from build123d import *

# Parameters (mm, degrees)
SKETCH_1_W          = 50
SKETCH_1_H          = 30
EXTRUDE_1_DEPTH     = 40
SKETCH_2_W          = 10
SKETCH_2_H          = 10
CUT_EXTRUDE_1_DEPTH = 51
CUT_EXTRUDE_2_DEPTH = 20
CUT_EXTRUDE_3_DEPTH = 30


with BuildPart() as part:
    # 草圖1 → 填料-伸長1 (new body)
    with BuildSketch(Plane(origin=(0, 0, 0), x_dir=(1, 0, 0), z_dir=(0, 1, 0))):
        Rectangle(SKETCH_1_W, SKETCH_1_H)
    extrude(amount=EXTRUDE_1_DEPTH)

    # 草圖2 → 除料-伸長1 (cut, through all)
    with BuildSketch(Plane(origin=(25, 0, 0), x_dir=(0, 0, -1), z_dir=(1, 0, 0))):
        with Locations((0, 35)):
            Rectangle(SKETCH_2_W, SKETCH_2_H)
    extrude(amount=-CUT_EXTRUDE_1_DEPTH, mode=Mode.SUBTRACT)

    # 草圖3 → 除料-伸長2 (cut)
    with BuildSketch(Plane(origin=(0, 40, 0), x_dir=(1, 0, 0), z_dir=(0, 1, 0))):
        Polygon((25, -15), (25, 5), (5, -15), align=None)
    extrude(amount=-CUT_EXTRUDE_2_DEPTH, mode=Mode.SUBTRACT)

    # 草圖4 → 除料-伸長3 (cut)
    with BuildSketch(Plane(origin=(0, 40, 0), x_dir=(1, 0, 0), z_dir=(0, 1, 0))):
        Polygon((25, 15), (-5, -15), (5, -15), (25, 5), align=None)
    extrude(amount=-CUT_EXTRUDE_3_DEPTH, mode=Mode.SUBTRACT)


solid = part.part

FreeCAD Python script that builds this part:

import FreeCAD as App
import Part
import Sketcher

V = App.Vector
Q = App.Units.Quantity

doc = App.newDocument("Part")
body = doc.addObject("PartDesign::Body", "Body")

# Sketch on XZ plane
sketch1 = body.newObject("Sketcher::SketchObject", "Sketch")
sketch1.AttachmentSupport = (doc.getObject("XZ_Plane"), [""])
sketch1.MapMode = "FlatFace"
sketch1.addGeometry(Part.LineSegment(V(-25, -15, 0), V(-25, 15, 0)), False)
sketch1.addGeometry(Part.LineSegment(V(-25, 15, 0), V(25, 15, 0)), False)
sketch1.addGeometry(Part.LineSegment(V(25, 15, 0), V(25, -15, 0)), False)
sketch1.addGeometry(Part.LineSegment(V(25, -15, 0), V(-25, -15, 0)), False)
sketch1.addConstraint(Sketcher.Constraint("Coincident", 0, 2, 1, 1))
sketch1.addConstraint(Sketcher.Constraint("Coincident", 1, 2, 2, 1))
sketch1.addConstraint(Sketcher.Constraint("Coincident", 2, 2, 3, 1))
sketch1.addConstraint(Sketcher.Constraint("Coincident", 3, 2, 0, 1))
sketch1.addConstraint(Sketcher.Constraint("Vertical", 0))
sketch1.addConstraint(Sketcher.Constraint("Horizontal", 1))
sketch1.addConstraint(Sketcher.Constraint("Vertical", 2))
sketch1.addConstraint(Sketcher.Constraint("Horizontal", 3))
sketch1.addConstraint(Sketcher.Constraint("Symmetric", 0, 2, 2, 2, -1, 1))
sketch1.addConstraint(Sketcher.Constraint("DistanceX", 1, 1, 1, 2, Q("50 mm")))
sketch1.addConstraint(Sketcher.Constraint("DistanceY", 0, 1, 0, 2, Q("30 mm")))
pad1 = body.newObject("PartDesign::Pad", "Pad")
pad1.Profile = sketch1
pad1.Length = 40
pad1.Reversed = True

# Sketch on YZ plane
sketch2 = body.newObject("Sketcher::SketchObject", "Sketch001")
sketch2.AttachmentSupport = (doc.getObject("YZ_Plane"), [""])
sketch2.MapMode = "FlatFace"
sketch2.AttachmentOffset = App.Placement(V(0, 0, 25), App.Rotation())
sketch2.addGeometry(Part.LineSegment(V(40, 5, 0), V(30, 5, 0)), False)
sketch2.addGeometry(Part.LineSegment(V(30, 5, 0), V(30, -5, 0)), False)
sketch2.addGeometry(Part.LineSegment(V(30, -5, 0), V(40, -5, 0)), False)
sketch2.addGeometry(Part.LineSegment(V(40, -5, 0), V(40, 5, 0)), False)
sketch2.addConstraint(Sketcher.Constraint("Coincident", 0, 2, 1, 1))
sketch2.addConstraint(Sketcher.Constraint("Coincident", 1, 2, 2, 1))
sketch2.addConstraint(Sketcher.Constraint("Coincident", 2, 2, 3, 1))
sketch2.addConstraint(Sketcher.Constraint("Coincident", 3, 2, 0, 1))
sketch2.addConstraint(Sketcher.Constraint("Horizontal", 0))
sketch2.addConstraint(Sketcher.Constraint("Vertical", 1))
sketch2.addConstraint(Sketcher.Constraint("Horizontal", 2))
sketch2.addConstraint(Sketcher.Constraint("Vertical", 3))
sketch2.addConstraint(Sketcher.Constraint("Equal", 2, 1))
sketch2.addConstraint(Sketcher.Constraint("DistanceX", 0, 2, 0, 1, Q("10 mm")))
sketch2.addConstraint(Sketcher.Constraint("DistanceX", -1, 1, 0, 2, Q("30 mm")))
sketch2.addConstraint(Sketcher.Constraint("DistanceY", -1, 1, 0, 2, Q("5 mm")))
pocket1 = body.newObject("PartDesign::Pocket", "Pocket")
pocket1.Profile = sketch2
pocket1.Type = "ThroughAll"

# Sketch on XZ plane
sketch3 = body.newObject("Sketcher::SketchObject", "Sketch002")
sketch3.AttachmentSupport = (doc.getObject("XZ_Plane"), [""])
sketch3.MapMode = "FlatFace"
sketch3.AttachmentOffset = App.Placement(V(0, 0, -40), App.Rotation())
sketch3.addGeometry(Part.LineSegment(V(25, 15, 0), V(25, -5, 0)), False)
sketch3.addGeometry(Part.LineSegment(V(25, -5, 0), V(5, 15, 0)), False)
sketch3.addGeometry(Part.LineSegment(V(5, 15, 0), V(25, 15, 0)), False)
sketch3.addConstraint(Sketcher.Constraint("Coincident", 0, 2, 1, 1))
sketch3.addConstraint(Sketcher.Constraint("Coincident", 1, 2, 2, 1))
sketch3.addConstraint(Sketcher.Constraint("Coincident", 2, 2, 0, 1))
sketch3.addConstraint(Sketcher.Constraint("Vertical", 0))
sketch3.addConstraint(Sketcher.Constraint("Horizontal", 2))
sketch3.addConstraint(Sketcher.Constraint("Equal", 2, 0))
sketch3.addConstraint(Sketcher.Constraint("DistanceX", 2, 1, 2, 2, Q("20 mm")))
sketch3.addConstraint(Sketcher.Constraint("DistanceX", -1, 1, 0, 2, Q("25 mm")))
sketch3.addConstraint(Sketcher.Constraint("DistanceY", 0, 2, -1, 1, Q("5 mm")))
pocket2 = body.newObject("PartDesign::Pocket", "Pocket001")
pocket2.Profile = sketch3
pocket2.Length = 20
pocket2.Reversed = True

# Sketch on XZ plane
sketch4 = body.newObject("Sketcher::SketchObject", "Sketch003")
sketch4.AttachmentSupport = (doc.getObject("XZ_Plane"), [""])
sketch4.MapMode = "FlatFace"
sketch4.AttachmentOffset = App.Placement(V(0, 0, -40), App.Rotation())
sketch4.addGeometry(Part.LineSegment(V(25, -15, 0), V(-5, 15, 0)), False)
sketch4.addGeometry(Part.LineSegment(V(-5, 15, 0), V(5, 15, 0)), False)
sketch4.addGeometry(Part.LineSegment(V(5, 15, 0), V(25, -5, 0)), False)
sketch4.addGeometry(Part.LineSegment(V(25, -5, 0), V(25, -15, 0)), False)
sketch4.addConstraint(Sketcher.Constraint("Coincident", 0, 2, 1, 1))
sketch4.addConstraint(Sketcher.Constraint("Coincident", 1, 2, 2, 1))
sketch4.addConstraint(Sketcher.Constraint("Coincident", 2, 2, 3, 1))
sketch4.addConstraint(Sketcher.Constraint("Coincident", 3, 2, 0, 1))
sketch4.addConstraint(Sketcher.Constraint("Horizontal", 1))
sketch4.addConstraint(Sketcher.Constraint("Vertical", 3))
sketch4.addConstraint(Sketcher.Constraint("Parallel", 0, 2))
sketch4.addConstraint(Sketcher.Constraint("Equal", 1, 3))
sketch4.addConstraint(Sketcher.Constraint("DistanceX", 1, 1, 1, 2, Q("10 mm")))
sketch4.addConstraint(Sketcher.Constraint("DistanceX", 0, 2, -1, 1, Q("5 mm")))
sketch4.addConstraint(Sketcher.Constraint("DistanceY", -1, 1, 0, 2, Q("15 mm")))
sketch4.addConstraint(Sketcher.Constraint("DistanceX", -1, 1, 2, 2, Q("25 mm")))
pocket3 = body.newObject("PartDesign::Pocket", "Pocket002")
pocket3.Profile = sketch4
pocket3.Length = 30
pocket3.Reversed = True

doc.recompute()
